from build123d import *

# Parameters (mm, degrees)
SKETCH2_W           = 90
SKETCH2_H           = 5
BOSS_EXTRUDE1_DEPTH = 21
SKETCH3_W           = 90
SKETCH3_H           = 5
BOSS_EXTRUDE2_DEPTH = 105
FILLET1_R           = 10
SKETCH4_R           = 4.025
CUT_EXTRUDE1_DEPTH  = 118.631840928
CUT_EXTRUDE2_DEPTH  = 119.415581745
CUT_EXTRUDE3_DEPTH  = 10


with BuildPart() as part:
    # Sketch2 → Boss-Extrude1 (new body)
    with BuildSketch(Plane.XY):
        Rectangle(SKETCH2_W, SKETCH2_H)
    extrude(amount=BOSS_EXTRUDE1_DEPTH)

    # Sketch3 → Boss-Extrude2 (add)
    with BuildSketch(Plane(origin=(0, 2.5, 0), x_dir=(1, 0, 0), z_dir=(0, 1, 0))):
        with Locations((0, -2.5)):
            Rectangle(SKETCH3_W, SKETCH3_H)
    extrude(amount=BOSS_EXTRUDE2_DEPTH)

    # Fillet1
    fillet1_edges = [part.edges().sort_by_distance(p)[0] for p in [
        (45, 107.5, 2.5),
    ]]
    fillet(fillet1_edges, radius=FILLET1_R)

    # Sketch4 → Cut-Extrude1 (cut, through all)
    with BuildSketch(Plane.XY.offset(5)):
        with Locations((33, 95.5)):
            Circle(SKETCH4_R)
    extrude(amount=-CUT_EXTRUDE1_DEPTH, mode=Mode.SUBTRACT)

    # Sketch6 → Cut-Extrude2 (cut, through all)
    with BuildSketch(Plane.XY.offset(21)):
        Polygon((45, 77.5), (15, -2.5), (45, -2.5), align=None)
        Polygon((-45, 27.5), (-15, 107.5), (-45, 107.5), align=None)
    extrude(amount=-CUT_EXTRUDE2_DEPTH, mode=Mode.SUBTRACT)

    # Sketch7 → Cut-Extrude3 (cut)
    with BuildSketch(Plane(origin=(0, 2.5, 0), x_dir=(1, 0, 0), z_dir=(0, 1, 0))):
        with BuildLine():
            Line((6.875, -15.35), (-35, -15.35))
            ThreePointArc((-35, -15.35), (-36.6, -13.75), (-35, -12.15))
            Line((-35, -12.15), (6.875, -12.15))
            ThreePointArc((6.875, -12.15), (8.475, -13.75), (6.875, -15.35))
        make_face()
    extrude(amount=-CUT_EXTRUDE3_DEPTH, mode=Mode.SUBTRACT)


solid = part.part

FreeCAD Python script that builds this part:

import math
import FreeCAD as App
import Part
import Sketcher


def edges_at(feature, points):
    """Names of the edges that pass closest to the given points."""
    edges = feature.Shape.Edges
    near = lambda p: min(range(len(edges)), key=lambda i: edges[i].distToShape(Part.Vertex(*p))[0])
    return sorted({f"Edge{near(p) + 1}" for p in points})

doc = App.newDocument("Part")
params = doc.addObject("Spreadsheet::Sheet", "Params")
for row, (alias, value) in enumerate([
    ("sketch1_width", "90 mm"),
    ("sketch1_height", "5 mm"),
    ("pad1_length", "21 mm"),
    ("sketch2_width", "90 mm"),
    ("sketch2_height", "5 mm"),
    ("pad2_length", "105 mm"),
    ("fillet_radius", "10 mm"),
    ("sketch3_diameter", "8.05 mm"),
    ("sketch4_width", "30 mm"),
    ("sketch4_height", "80 mm"),
    ("sketch5_radius", "1.6 mm"),
    ("pocket3_length", "10 mm"),
], start=1):
    params.set(f"A{row}", alias)
    params.set(f"B{row}", "=" + value)
    params.setAlias(f"B{row}", alias)

body = doc.addObject("PartDesign::Body", "Body")

sketch1 = body.newObject("Sketcher::SketchObject", "Sketch")
sketch1.AttachmentSupport = (doc.getObject("XY_Plane"), [""])
sketch1.MapMode = "FlatFace"
sketch1.addGeometry(Part.LineSegment(App.Vector(-45, 2.5, 0), App.Vector(-45, -2.5, 0)), False)
sketch1.addGeometry(Part.LineSegment(App.Vector(-45, -2.5, 0), App.Vector(45, -2.5, 0)), False)
sketch1.addGeometry(Part.LineSegment(App.Vector(45, -2.5, 0), App.Vector(45, 2.5, 0)), False)
sketch1.addGeometry(Part.LineSegment(App.Vector(45, 2.5, 0), App.Vector(-45, 2.5, 0)), False)
sketch1.addConstraint(Sketcher.Constraint("Coincident", 0, 2, 1, 1))
sketch1.addConstraint(Sketcher.Constraint("Coincident", 1, 2, 2, 1))
sketch1.addConstraint(Sketcher.Constraint("Coincident", 2, 2, 3, 1))
sketch1.addConstraint(Sketcher.Constraint("Coincident", 3, 2, 0, 1))
sketch1.addConstraint(Sketcher.Constraint("Vertical", 0))
sketch1.addConstraint(Sketcher.Constraint("Horizontal", 1))
sketch1.addConstraint(Sketcher.Constraint("Vertical", 2))
sketch1.addConstraint(Sketcher.Constraint("Horizontal", 3))
sketch1.addConstraint(Sketcher.Constraint("Symmetric", 0, 2, 2, 2, -1, 1))
sketch1.addConstraint(Sketcher.Constraint("DistanceX", 1, 1, 1, 2, 90.0))
sketch1.addConstraint(Sketcher.Constraint("DistanceY", 0, 2, 0, 1, 5.0))
sketch1.setExpression("Constraints[9]", "Params.sketch1_width")
sketch1.setExpression("Constraints[10]", "Params.sketch1_height")
pad1 = body.newObject("PartDesign::Pad", "Pad")
pad1.Profile = sketch1
pad1.setExpression("Length", "Params.pad1_length")

sketch2 = body.newObject("Sketcher::SketchObject", "Sketch001")
sketch2.AttachmentSupport = (doc.getObject("XZ_Plane"), [""])
sketch2.MapMode = "FlatFace"
sketch2.AttachmentOffset = App.Placement(App.Vector(0, 0, -2.5), App.Rotation())
sketch2.addGeometry(Part.LineSegment(App.Vector(-45, 0, 0), App.Vector(-45, 5, 0)), False)
sketch2.addGeometry(Part.LineSegment(App.Vector(-45, 5, 0), App.Vector(45, 5, 0)), False)
sketch2.addGeometry(Part.LineSegment(App.Vector(45, 5, 0), App.Vector(45, 0, 0)), False)
sketch2.addGeometry(Part.LineSegment(App.Vector(45, 0, 0), App.Vector(-45, 0, 0)), False)
sketch2.addConstraint(Sketcher.Constraint("Coincident", 0, 2, 1, 1))
sketch2.addConstraint(Sketcher.Constraint("Coincident", 1, 2, 2, 1))
sketch2.addConstraint(Sketcher.Constraint("Coincident", 2, 2, 3, 1))
sketch2.addConstraint(Sketcher.Constraint("Coincident", 3, 2, 0, 1))
sketch2.addConstraint(Sketcher.Constraint("Vertical", 0))
sketch2.addConstraint(Sketcher.Constraint("Horizontal", 1))
sketch2.addConstraint(Sketcher.Constraint("Vertical", 2))
sketch2.addConstraint(Sketcher.Constraint("Horizontal", 3))
sketch2.addConstraint(Sketcher.Constraint("Symmetric", 2, 2, 3, 2, -1, 1))
sketch2.addConstraint(Sketcher.Constraint("DistanceX", 1, 1, 1, 2, 90.0))
sketch2.addConstraint(Sketcher.Constraint("DistanceY", 0, 1, 0, 2, 5.0))
sketch2.setExpression("Constraints[9]", "Params.sketch2_width")
sketch2.setExpression("Constraints[10]", "Params.sketch2_height")
pad2 = body.newObject("PartDesign::Pad", "Pad001")
pad2.Profile = sketch2
pad2.setExpression("Length", "Params.pad2_length")
pad2.Reversed = True
doc.recompute()

fillet = body.newObject("PartDesign::Fillet", "Fillet")
fillet.Base = (pad2, edges_at(pad2, [(45, 107.5, 2.5)]))
fillet.setExpression("Radius", "Params.fillet_radius")

sketch3 = body.newObject("Sketcher::SketchObject", "Sketch002")
sketch3.AttachmentSupport = (doc.getObject("XY_Plane"), [""])
sketch3.MapMode = "FlatFace"
sketch3.AttachmentOffset = App.Placement(App.Vector(0, 0, 5), App.Rotation())
sketch3.addGeometry(Part.Circle(App.Vector(33, 95.5, 0), App.Vector(0, 0, 1), 4.025), False)
sketch3.addConstraint(Sketcher.Constraint("Diameter", 0, 8.05))
sketch3.addConstraint(Sketcher.Constraint("DistanceX", -1, 1, 0, 3, 33.0))
sketch3.addConstraint(Sketcher.Constraint("DistanceY", -1, 1, 0, 3, 95.5))
sketch3.setExpression("Constraints[0]", "Params.sketch3_diameter")
pocket1 = body.newObject("PartDesign::Pocket", "Pocket")
pocket1.Profile = sketch3
pocket1.Type = "ThroughAll"

sketch4 = body.newObject("Sketcher::SketchObject", "Sketch003")
sketch4.AttachmentSupport = (doc.getObject("XY_Plane"), [""])
sketch4.MapMode = "FlatFace"
sketch4.AttachmentOffset = App.Placement(App.Vector(0, 0, 21), App.Rotation())
sketch4.addGeometry(Part.LineSegment(App.Vector(45, 77.5, 0), App.Vector(15, -2.5, 0)), False)
sketch4.addGeometry(Part.LineSegment(App.Vector(15, -2.5, 0), App.Vector(45, -2.5, 0)), False)
sketch4.addGeometry(Part.LineSegment(App.Vector(45, -2.5, 0), App.Vector(45, 77.5, 0)), False)
sketch4.addGeometry(Part.LineSegment(App.Vector(-45, 27.5, 0), App.Vector(-15, 107.5, 0)), False)
sketch4.addGeometry(Part.LineSegment(App.Vector(-15, 107.5, 0), App.Vector(-45, 107.5, 0)), False)
sketch4.addGeometry(Part.LineSegment(App.Vector(-45, 107.5, 0), App.Vector(-45, 27.5, 0)), False)
sketch4.addConstraint(Sketcher.Constraint("Coincident", 0, 2, 1, 1))
sketch4.addConstraint(Sketcher.Constraint("Coincident", 1, 2, 2, 1))
sketch4.addConstraint(Sketcher.Constraint("Coincident", 2, 2, 0, 1))
sketch4.addConstraint(Sketcher.Constraint("Coincident", 3, 2, 4, 1))
sketch4.addConstraint(Sketcher.Constraint("Coincident", 4, 2, 5, 1))
sketch4.addConstraint(Sketcher.Constraint("Coincident", 5, 2, 3, 1))
sketch4.addConstraint(Sketcher.Constraint("Horizontal", 1))
sketch4.addConstraint(Sketcher.Constraint("Vertical", 2))
sketch4.addConstraint(Sketcher.Constraint("Horizontal", 4))
sketch4.addConstraint(Sketcher.Constraint("Vertical", 5))
sketch4.addConstraint(Sketcher.Constraint("Parallel", 0, 3))
sketch4.addConstraint(Sketcher.Constraint("Equal", 1, 4))
sketch4.addConstraint(Sketcher.Constraint("DistanceX", 1, 1, 1, 2, 30.0))
sketch4.addConstraint(Sketcher.Constraint("DistanceY", 2, 1, 2, 2, 80.0))
sketch4.addConstraint(Sketcher.Constraint("DistanceX", -1, 1, 0, 2, 15.0))
sketch4.addConstraint(Sketcher.Constraint("DistanceX", 3, 2, -1, 1, 15.0))
sketch4.addConstraint(Sketcher.Constraint("DistanceY", 2, 2, 3, 2, 30.0))
sketch4.addConstraint(Sketcher.Constraint("DistanceY", 0, 2, -1, 1, 2.5))
sketch4.setExpression("Constraints[12]", "Params.sketch4_width")
sketch4.setExpression("Constraints[13]", "Params.sketch4_height")
pocket2 = body.newObject("PartDesign::Pocket", "Pocket001")
pocket2.Profile = sketch4
pocket2.Type = "ThroughAll"

sketch5 = body.newObject("Sketcher::SketchObject", "Sketch004")
sketch5.AttachmentSupport = (doc.getObject("XZ_Plane"), [""])
sketch5.MapMode = "FlatFace"
sketch5.AttachmentOffset = App.Placement(App.Vector(0, 0, -2.5), App.Rotation())
sketch5.addGeometry(Part.LineSegment(App.Vector(-35, 15.35, 0), App.Vector(6.875, 15.35, 0)), False)
sketch5.addGeometry(Part.ArcOfCircle(Part.Circle(App.Vector(6.875, 13.75, 0), App.Vector(0, 0, 1), 1.6), math.radians(-90), math.radians(90)), False)
sketch5.addGeometry(Part.LineSegment(App.Vector(6.875, 12.15, 0), App.Vector(-35, 12.15, 0)), False)
sketch5.addGeometry(Part.ArcOfCircle(Part.Circle(App.Vector(-35, 13.75, 0), App.Vector(0, 0, 1), 1.6), math.radians(90), math.radians(270)), False)
sketch5.addConstraint(Sketcher.Constraint("Tangent", 0, 2, 1, 2))
sketch5.addConstraint(Sketcher.Constraint("Tangent", 1, 1, 2, 1))
sketch5.addConstraint(Sketcher.Constraint("Tangent", 2, 2, 3, 2))
sketch5.addConstraint(Sketcher.Constraint("Tangent", 3, 1, 0, 1))
sketch5.addConstraint(Sketcher.Constraint("Horizontal", 0))
sketch5.addConstraint(Sketcher.Constraint("Horizontal", 2))
sketch5.addConstraint(Sketcher.Constraint("Radius", 1, 1.6))
sketch5.addConstraint(Sketcher.Constraint("DistanceX", 3, 3, -1, 1, 35.0))
sketch5.addConstraint(Sketcher.Constraint("DistanceX", 0, 1, 0, 2, 41.875))
sketch5.addConstraint(Sketcher.Constraint("DistanceY", -1, 1, 1, 3, 13.75))
sketch5.setExpression("Constraints[6]", "Params.sketch5_radius")
pocket3 = body.newObject("PartDesign::Pocket", "Pocket002")
pocket3.Profile = sketch5
pocket3.setExpression("Length", "Params.pocket3_length")
pocket3.Reversed = True

doc.recompute()
